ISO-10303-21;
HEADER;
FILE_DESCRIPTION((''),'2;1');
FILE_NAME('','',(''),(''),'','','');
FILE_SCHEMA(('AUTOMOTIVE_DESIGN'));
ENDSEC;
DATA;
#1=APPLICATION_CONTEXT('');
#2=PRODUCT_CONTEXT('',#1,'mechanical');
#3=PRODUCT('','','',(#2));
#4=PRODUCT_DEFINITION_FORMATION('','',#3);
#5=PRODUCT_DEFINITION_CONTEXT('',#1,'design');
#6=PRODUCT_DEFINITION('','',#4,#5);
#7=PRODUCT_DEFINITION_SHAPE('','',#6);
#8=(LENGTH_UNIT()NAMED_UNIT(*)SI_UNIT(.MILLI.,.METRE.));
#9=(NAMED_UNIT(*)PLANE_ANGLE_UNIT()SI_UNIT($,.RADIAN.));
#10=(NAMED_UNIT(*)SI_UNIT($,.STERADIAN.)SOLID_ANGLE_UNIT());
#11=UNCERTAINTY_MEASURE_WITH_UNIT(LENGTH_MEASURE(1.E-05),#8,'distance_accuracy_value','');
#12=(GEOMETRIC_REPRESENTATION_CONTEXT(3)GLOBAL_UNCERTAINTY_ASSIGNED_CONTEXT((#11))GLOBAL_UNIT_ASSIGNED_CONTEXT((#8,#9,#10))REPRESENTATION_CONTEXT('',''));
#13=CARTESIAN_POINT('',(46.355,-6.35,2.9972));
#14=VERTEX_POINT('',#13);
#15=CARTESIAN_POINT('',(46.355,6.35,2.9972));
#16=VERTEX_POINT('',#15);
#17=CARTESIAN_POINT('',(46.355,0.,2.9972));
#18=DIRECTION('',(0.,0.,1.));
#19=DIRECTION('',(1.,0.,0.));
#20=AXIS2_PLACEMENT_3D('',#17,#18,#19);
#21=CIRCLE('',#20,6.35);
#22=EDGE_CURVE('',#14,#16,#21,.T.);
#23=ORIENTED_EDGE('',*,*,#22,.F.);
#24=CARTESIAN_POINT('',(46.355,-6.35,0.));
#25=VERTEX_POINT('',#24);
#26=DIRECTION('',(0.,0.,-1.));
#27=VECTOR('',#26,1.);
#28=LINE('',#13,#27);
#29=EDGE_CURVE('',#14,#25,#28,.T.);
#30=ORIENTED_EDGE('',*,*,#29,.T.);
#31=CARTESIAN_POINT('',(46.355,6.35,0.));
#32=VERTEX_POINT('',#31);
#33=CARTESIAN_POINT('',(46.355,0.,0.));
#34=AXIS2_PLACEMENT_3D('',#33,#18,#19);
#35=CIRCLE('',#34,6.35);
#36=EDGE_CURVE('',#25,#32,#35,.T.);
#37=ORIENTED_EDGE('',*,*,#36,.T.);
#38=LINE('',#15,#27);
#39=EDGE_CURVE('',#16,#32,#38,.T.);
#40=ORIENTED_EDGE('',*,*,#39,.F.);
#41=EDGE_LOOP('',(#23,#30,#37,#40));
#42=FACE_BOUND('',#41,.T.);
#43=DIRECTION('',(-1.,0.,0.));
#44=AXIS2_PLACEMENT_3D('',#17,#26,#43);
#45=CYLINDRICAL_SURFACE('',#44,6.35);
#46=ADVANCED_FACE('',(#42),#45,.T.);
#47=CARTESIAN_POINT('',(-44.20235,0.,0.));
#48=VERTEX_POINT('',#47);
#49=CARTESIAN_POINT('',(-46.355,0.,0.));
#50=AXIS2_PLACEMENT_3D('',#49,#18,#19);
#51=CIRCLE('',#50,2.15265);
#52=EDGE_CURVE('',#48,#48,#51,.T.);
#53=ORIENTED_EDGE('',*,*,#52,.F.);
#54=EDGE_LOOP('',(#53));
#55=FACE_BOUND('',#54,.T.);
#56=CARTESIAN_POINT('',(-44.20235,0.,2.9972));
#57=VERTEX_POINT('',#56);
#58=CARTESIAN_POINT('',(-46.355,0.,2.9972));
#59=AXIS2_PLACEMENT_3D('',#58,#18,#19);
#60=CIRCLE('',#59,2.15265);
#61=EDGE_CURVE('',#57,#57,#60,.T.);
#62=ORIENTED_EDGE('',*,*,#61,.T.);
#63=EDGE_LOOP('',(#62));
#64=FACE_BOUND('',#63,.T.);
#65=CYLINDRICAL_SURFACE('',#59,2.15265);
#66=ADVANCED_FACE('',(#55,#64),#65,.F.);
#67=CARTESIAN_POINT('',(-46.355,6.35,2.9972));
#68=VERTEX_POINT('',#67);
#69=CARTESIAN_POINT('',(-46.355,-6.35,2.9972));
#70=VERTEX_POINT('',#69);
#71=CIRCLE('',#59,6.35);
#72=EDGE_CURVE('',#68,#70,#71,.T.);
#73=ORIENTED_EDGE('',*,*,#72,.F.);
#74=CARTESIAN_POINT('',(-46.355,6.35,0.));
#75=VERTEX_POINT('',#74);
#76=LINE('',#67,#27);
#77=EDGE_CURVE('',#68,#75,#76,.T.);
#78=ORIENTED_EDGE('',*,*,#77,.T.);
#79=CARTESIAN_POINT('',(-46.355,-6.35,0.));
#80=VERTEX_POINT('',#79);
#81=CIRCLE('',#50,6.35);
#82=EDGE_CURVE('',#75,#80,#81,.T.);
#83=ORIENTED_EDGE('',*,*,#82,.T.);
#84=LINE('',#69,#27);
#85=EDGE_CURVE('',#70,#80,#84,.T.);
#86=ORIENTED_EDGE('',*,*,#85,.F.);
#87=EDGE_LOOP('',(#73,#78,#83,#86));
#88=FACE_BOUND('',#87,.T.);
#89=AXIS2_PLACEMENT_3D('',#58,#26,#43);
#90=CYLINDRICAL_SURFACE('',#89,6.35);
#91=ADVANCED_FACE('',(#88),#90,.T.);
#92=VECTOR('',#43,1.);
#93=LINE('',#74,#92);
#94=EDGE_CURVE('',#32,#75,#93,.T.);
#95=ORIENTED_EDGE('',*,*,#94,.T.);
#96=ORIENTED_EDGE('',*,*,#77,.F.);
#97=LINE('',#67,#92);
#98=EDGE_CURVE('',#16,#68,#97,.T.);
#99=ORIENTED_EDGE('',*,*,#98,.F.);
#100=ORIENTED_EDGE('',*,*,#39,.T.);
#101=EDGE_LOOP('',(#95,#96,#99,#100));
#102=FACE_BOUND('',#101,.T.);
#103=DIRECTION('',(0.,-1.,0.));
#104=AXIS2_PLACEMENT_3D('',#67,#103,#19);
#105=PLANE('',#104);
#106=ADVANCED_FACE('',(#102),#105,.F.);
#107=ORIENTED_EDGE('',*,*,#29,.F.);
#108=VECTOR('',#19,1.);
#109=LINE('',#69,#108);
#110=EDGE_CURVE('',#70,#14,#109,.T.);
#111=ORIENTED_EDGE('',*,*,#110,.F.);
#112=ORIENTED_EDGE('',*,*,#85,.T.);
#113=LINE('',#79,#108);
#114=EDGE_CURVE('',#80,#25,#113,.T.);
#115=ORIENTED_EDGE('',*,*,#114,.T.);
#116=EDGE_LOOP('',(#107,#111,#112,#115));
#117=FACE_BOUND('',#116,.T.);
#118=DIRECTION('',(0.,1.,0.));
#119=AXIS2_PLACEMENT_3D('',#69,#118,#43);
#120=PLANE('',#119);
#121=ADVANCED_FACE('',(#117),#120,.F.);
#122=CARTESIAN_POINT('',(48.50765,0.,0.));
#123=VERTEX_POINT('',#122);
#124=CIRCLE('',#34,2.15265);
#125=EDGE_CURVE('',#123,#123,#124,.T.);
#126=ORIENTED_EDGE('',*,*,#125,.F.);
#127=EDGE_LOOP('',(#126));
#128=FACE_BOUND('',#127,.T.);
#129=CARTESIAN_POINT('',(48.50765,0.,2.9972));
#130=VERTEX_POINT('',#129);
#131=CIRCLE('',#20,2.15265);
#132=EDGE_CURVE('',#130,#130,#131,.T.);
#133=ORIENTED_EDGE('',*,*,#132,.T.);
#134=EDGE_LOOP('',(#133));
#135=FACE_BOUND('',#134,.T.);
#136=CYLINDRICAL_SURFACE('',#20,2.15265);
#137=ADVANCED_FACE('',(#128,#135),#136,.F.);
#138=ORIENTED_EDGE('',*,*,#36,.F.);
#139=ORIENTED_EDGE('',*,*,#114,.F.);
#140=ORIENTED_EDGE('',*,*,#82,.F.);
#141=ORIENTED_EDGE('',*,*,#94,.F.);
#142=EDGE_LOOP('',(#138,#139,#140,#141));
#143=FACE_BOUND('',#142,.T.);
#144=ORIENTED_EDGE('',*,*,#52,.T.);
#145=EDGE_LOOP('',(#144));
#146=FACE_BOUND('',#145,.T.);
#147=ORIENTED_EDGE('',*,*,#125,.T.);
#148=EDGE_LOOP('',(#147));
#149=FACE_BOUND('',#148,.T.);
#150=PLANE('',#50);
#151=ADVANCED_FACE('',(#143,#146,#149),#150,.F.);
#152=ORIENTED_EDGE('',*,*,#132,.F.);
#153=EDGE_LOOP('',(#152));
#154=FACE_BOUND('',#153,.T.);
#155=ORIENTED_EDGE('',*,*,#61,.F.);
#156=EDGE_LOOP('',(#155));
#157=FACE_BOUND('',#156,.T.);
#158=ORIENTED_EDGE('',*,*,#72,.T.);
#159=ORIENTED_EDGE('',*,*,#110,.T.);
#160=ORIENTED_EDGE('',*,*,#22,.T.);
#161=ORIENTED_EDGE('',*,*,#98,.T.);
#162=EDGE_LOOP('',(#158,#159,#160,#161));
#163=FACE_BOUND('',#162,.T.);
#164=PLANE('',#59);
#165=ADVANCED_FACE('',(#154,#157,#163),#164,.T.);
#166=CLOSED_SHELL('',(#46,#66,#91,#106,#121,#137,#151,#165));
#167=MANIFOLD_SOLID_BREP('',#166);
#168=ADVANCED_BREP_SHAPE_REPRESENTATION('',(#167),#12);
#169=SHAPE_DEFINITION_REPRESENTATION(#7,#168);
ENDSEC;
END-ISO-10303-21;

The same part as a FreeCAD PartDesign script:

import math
import FreeCAD as App
import Part
import Sketcher

V = App.Vector
Q = App.Units.Quantity

doc = App.newDocument("Part")
body = doc.addObject("PartDesign::Body", "Body")

# Sketch on XY plane
sketch1 = doc.addObject("Sketcher::SketchObject", "Sketch")
body.addObject(sketch1)
sketch1.AttachmentSupport = (doc.XY_Plane, [""])
sketch1.MapMode = "FlatFace"
sketch1.addGeometry(Part.LineSegment(V(46, 6, 0), V(-46, 6, 0)), False)
sketch1.addGeometry(Part.ArcOfCircle(Part.Circle(V(-46, 0, 0), V(0, 0, 1), 6), math.radians(90), math.radians(270)), False)
sketch1.addGeometry(Part.LineSegment(V(-46, -6, 0), V(46, -6, 0)), False)
sketch1.addGeometry(Part.ArcOfCircle(Part.Circle(V(46, 0, 0), V(0, 0, 1), 6), math.radians(-90), math.radians(90)), False)
sketch1.addConstraint(Sketcher.Constraint("Tangent", 0, 2, 1, 1))
sketch1.addConstraint(Sketcher.Constraint("Tangent", 1, 2, 2, 1))
sketch1.addConstraint(Sketcher.Constraint("Tangent", 2, 2, 3, 1))
sketch1.addConstraint(Sketcher.Constraint("Tangent", 3, 2, 0, 1))
sketch1.addConstraint(Sketcher.Constraint("Horizontal", 0))
sketch1.addConstraint(Sketcher.Constraint("Horizontal", 2))
sketch1.addConstraint(Sketcher.Constraint("Symmetric", 1, 3, 3, 3, -1, 1))
sketch1.addConstraint(Sketcher.Constraint("Radius", 1, Q("0.25 in")))
sketch1.addConstraint(Sketcher.Constraint("DistanceX", 0, 2, 0, 1, Q("3.65 in")))
pad1 = doc.addObject("PartDesign::Pad", "Pad")
body.addObject(pad1)
pad1.Profile = sketch1
pad1.Length = Q("0.118 in")

# Sketch on XY plane
sketch2 = doc.addObject("Sketcher::SketchObject", "Sketch001")
body.addObject(sketch2)
sketch2.AttachmentSupport = (doc.XY_Plane, [""])
sketch2.MapMode = "FlatFace"
sketch2.AttachmentOffset = App.Placement(V(0, 0, 0.118 * 25.4), App.Rotation())
sketch2.addGeometry(Part.Circle(V(-46.4, 0, 0), V(0, 0, 1), 2.2), False)
sketch2.addGeometry(Part.Circle(V(46.4, 0, 0), V(0, 0, 1), 2.2), False)
sketch2.addConstraint(Sketcher.Constraint("Equal", 0, 1))
sketch2.addConstraint(Sketcher.Constraint("Symmetric", 0, 3, 1, 3, -1, 1))
sketch2.addConstraint(Sketcher.Constraint("PointOnObject", 0, 3, -1))
sketch2.addConstraint(Sketcher.Constraint("Diameter", 0, Q("0.1695 in")))
sketch2.addConstraint(Sketcher.Constraint("DistanceX", 0, 3, 1, 3, Q("3.65 in")))
doc.recompute()
hole = doc.addObject("PartDesign::Hole", "Hole")
body.addObject(hole)
hole.Profile = sketch2
hole.ThreadType = "None"
hole.Diameter = Q("0.1695 in")
hole.DepthType = "Dimension"
hole.Depth = 6.351016
hole.DrillPoint = "Flat"

doc.recompute()
